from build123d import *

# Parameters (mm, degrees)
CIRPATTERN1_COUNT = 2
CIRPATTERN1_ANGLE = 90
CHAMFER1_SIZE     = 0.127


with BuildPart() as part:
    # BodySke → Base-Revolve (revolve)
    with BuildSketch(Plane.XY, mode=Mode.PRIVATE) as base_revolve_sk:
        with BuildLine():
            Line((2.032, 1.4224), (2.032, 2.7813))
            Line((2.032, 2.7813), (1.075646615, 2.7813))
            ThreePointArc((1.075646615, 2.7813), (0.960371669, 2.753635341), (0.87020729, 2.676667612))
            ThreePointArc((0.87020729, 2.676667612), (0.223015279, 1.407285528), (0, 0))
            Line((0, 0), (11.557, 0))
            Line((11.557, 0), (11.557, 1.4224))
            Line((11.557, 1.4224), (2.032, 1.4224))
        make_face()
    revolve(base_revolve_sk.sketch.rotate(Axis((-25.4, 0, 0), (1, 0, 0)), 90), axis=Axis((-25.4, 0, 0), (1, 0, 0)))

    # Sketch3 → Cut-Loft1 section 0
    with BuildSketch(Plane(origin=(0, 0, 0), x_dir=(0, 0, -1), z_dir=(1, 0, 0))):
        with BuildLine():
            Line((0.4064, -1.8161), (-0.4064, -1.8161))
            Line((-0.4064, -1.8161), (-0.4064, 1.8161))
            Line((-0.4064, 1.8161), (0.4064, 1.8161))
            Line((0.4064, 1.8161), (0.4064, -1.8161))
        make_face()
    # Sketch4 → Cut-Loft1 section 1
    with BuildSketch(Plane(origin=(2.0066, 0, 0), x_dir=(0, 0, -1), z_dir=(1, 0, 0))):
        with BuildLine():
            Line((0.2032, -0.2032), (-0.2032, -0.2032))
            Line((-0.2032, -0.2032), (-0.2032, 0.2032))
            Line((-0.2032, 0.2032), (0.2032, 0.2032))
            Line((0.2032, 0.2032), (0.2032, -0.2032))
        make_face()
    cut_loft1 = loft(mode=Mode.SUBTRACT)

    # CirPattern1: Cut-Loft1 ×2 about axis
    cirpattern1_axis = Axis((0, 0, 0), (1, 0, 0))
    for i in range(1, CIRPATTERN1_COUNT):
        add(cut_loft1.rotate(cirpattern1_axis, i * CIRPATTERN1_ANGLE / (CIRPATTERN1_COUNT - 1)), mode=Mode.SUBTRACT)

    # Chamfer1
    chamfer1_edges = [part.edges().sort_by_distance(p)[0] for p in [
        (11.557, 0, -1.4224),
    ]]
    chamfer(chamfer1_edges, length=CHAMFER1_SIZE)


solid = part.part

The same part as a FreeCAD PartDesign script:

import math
import FreeCAD as App
import Part
import Sketcher
Q = App.Units.Quantity


def edges_at(feature, points):
    """Names of the edges that pass closest to the given points."""
    edges = feature.Shape.Edges
    near = lambda p: min(range(len(edges)), key=lambda i: edges[i].distToShape(Part.Vertex(*p))[0])
    return sorted({f"Edge{near(p) + 1}" for p in points})


def add_polygon(sketch, points):
    """Adds a closed chain of lines whose ends are joined by coincident constraints."""
    first, n = sketch.GeometryCount, len(points)
    for a, b in zip(points, points[1:] + points[:1]):
        sketch.addGeometry(Part.LineSegment(App.Vector(*a, 0), App.Vector(*b, 0)), False)
    for i in range(n):
        sketch.addConstraint(Sketcher.Constraint("Coincident", first + i, 2, first + (i + 1) % n, 1))

doc = App.newDocument("Part")
body = doc.addObject("PartDesign::Body", "Body")

# Sketch on XY plane
sketch1 = body.newObject("Sketcher::SketchObject", "Sketch")
sketch1.AttachmentSupport = (doc.getObject("XY_Plane"), [""])
sketch1.MapMode = "FlatFace"
sketch1.addGeometry(Part.LineSegment(App.Vector(2.03, 1.42, 0), App.Vector(2.03, 2.78, 0)), False)
sketch1.addGeometry(Part.LineSegment(App.Vector(2.03, 2.78, 0), App.Vector(1.08, 2.78, 0)), False)
sketch1.addGeometry(Part.ArcOfCircle(Part.Circle(App.Vector(1.08, 2.53, 0), App.Vector(0, 0, 1), 0.25), math.radians(90), math.radians(144)), False)
sketch1.addGeometry(Part.ArcOfCircle(Part.Circle(App.Vector(4.55, 0, 0), App.Vector(0, 0, 1), 4.55), math.radians(144), math.radians(180)), False)
sketch1.addGeometry(Part.LineSegment(App.Vector(0, 0, 0), App.Vector(11.56, 0, 0)), False)
sketch1.addGeometry(Part.LineSegment(App.Vector(11.56, 0, 0), App.Vector(11.56, 1.42, 0)), False)
sketch1.addGeometry(Part.LineSegment(App.Vector(11.56, 1.42, 0), App.Vector(2.03, 1.42, 0)), False)
sketch1.addConstraint(Sketcher.Constraint("Coincident", 0, 2, 1, 1))
sketch1.addConstraint(Sketcher.Constraint("Tangent", 1, 2, 2, 1))
sketch1.addConstraint(Sketcher.Constraint("Tangent", 2, 2, 3, 1))
sketch1.addConstraint(Sketcher.Constraint("Coincident", 3, 2, 4, 1))
sketch1.addConstraint(Sketcher.Constraint("Coincident", 4, 2, 5, 1))
sketch1.addConstraint(Sketcher.Constraint("Coincident", 5, 2, 6, 1))
sketch1.addConstraint(Sketcher.Constraint("Coincident", 6, 2, 0, 1))
sketch1.addConstraint(Sketcher.Constraint("Vertical", 0))
sketch1.addConstraint(Sketcher.Constraint("Horizontal", 1))
sketch1.addConstraint(Sketcher.Constraint("Horizontal", 4))
sketch1.addConstraint(Sketcher.Constraint("Vertical", 5))
sketch1.addConstraint(Sketcher.Constraint("Horizontal", 6))
sketch1.addConstraint(Sketcher.Constraint("Coincident", 3, 2, -1, 1))
sketch1.addConstraint(Sketcher.Constraint("PointOnObject", 3, 3, -1))
sketch1.addConstraint(Sketcher.Constraint("Radius", 2, Q("0.01 in")))
sketch1.addConstraint(Sketcher.Constraint("Radius", 3, Q("0.1792 in")))
sketch1.addConstraint(Sketcher.Constraint("DistanceX", 4, 1, 4, 2, Q("0.455 in")))
sketch1.addConstraint(Sketcher.Constraint("DistanceX", 6, 2, 6, 1, Q("0.375 in")))
sketch1.addConstraint(Sketcher.Constraint("DistanceY", 5, 1, 5, 2, Q("0.056 in")))
sketch1.addConstraint(Sketcher.Constraint("DistanceY", 0, 1, 0, 2, Q("0.0535 in")))
revolution = body.newObject("PartDesign::Revolution", "Revolution")
revolution.Profile = sketch1
revolution.ReferenceAxis = (sketch1, ["H_Axis"])
revolution.Angle = 360

# Sketch on YZ plane
sketch2 = body.newObject("Sketcher::SketchObject", "Sketch001")
sketch2.AttachmentSupport = (doc.getObject("YZ_Plane"), [""])
sketch2.MapMode = "FlatFace"
add_polygon(sketch2, [(-1.8, 0.4), (-1.8, -0.4), (1.8, -0.4), (1.8, 0.4)])  # lines 0-3
sketch2.addConstraint(Sketcher.Constraint("Vertical", 0))
sketch2.addConstraint(Sketcher.Constraint("Horizontal", 1))
sketch2.addConstraint(Sketcher.Constraint("Vertical", 2))
sketch2.addConstraint(Sketcher.Constraint("Horizontal", 3))
sketch2.addConstraint(Sketcher.Constraint("Symmetric", 0, 2, 2, 2, -1, 1))
sketch2.addConstraint(Sketcher.Constraint("DistanceX", 1, 1, 1, 2, Q("0.143 in")))
sketch2.addConstraint(Sketcher.Constraint("DistanceY", 0, 2, 0, 1, Q("0.032 in")))

# Sketch on YZ plane
sketch3 = body.newObject("Sketcher::SketchObject", "Sketch002")
sketch3.AttachmentSupport = (doc.getObject("YZ_Plane"), [""])
sketch3.MapMode = "FlatFace"
sketch3.AttachmentOffset = App.Placement(App.Vector(0, 0, 0.079 * 25.4), App.Rotation())
add_polygon(sketch3, [(-0.2, 0.2), (-0.2, -0.2), (0.2, -0.2), (0.2, 0.2)])  # lines 0-3
sketch3.addConstraint(Sketcher.Constraint("Vertical", 0))
sketch3.addConstraint(Sketcher.Constraint("Horizontal", 1))
sketch3.addConstraint(Sketcher.Constraint("Vertical", 2))
sketch3.addConstraint(Sketcher.Constraint("Horizontal", 3))
sketch3.addConstraint(Sketcher.Constraint("Symmetric", 0, 2, 2, 2, -1, 1))
sketch3.addConstraint(Sketcher.Constraint("Equal", 3, 0))
sketch3.addConstraint(Sketcher.Constraint("DistanceX", 1, 1, 1, 2, Q("0.016 in")))

subtractiveloft = body.newObject("PartDesign::SubtractiveLoft", "SubtractiveLoft")
subtractiveloft.Profile = sketch2
subtractiveloft.Sections = [sketch3]
doc.recompute()

polarpattern = body.newObject("PartDesign::PolarPattern", "PolarPattern")
polarpattern.Originals = [subtractiveloft]
polarpattern.Axis = (doc.getObject("X_Axis"), [""])
polarpattern.Angle = 90
polarpattern.Occurrences = 2
body.Tip = polarpattern
doc.recompute()

chamfer = body.newObject("PartDesign::Chamfer", "Chamfer")
chamfer.Base = (polarpattern, edges_at(polarpattern, [(11.557, 0, -1.422)]))
chamfer.Size = Q("0.005 in")

doc.recompute()
